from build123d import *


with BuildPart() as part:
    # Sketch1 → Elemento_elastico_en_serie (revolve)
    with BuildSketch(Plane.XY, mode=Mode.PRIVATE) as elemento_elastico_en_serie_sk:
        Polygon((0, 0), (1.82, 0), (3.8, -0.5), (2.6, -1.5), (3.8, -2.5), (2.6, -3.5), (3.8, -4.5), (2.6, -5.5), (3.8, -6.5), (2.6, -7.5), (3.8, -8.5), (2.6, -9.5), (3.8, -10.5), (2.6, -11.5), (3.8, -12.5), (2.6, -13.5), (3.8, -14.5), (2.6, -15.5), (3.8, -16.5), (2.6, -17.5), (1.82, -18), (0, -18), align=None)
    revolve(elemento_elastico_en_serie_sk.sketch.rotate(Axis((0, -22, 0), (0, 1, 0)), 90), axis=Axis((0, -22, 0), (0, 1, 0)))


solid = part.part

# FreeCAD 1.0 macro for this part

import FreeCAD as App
import Part
import Sketcher

V = App.Vector


def add_polygon(sketch, points):
    """Adds a closed chain of lines whose ends are joined by coincident constraints."""
    first, n = sketch.GeometryCount, len(points)
    for a, b in zip(points, points[1:] + points[:1]):
        sketch.addGeometry(Part.LineSegment(App.Vector(*a, 0), App.Vector(*b, 0)), False)
    for i in range(n):
        sketch.addConstraint(Sketcher.Constraint("Coincident", first + i, 2, first + (i + 1) % n, 1))

doc = App.newDocument("Part")
body = doc.addObject("PartDesign::Body", "Body")

# Sketch on XY plane
sketch1 = body.newObject("Sketcher::SketchObject", "Sketch")
sketch1.AttachmentSupport = (doc.getObject("XY_Plane"), [""])
sketch1.MapMode = "FlatFace"
add_polygon(sketch1, [(1.8, 0), (0, 0), (0, -18), (1.8, -18), (2.6, -17.5), (3.8, -16.5), (2.6, -15.5), (3.8, -14.5), (2.6, -13.5), (3.8, -12.5), (2.6, -11.5), (3.8, -10.5), (2.6, -9.5), (3.8, -8.5), (2.6, -7.5), (3.8, -6.5), (2.6, -5.5), (3.8, -4.5), (2.6, -3.5), (3.8, -2.5), (2.6, -1.5), (3.8, -0.5)])  # lines 0-21
sketch1.addConstraint(Sketcher.Constraint("Horizontal", 0))
sketch1.addConstraint(Sketcher.Constraint("Vertical", 1))
sketch1.addConstraint(Sketcher.Constraint("Horizontal", 2))
sketch1.addConstraint(Sketcher.Constraint("Coincident", 0, 2, -1, 1))
sketch1.addConstraint(Sketcher.Constraint("Parallel", 4, 6))
sketch1.addConstraint(Sketcher.Constraint("Parallel", 5, 7))
sketch1.addConstraint(Sketcher.Constraint("Parallel", 6, 8))
sketch1.addConstraint(Sketcher.Constraint("Parallel", 7, 9))
sketch1.addConstraint(Sketcher.Constraint("Parallel", 8, 10))
sketch1.addConstraint(Sketcher.Constraint("Parallel", 9, 11))
sketch1.addConstraint(Sketcher.Constraint("Parallel", 10, 12))
sketch1.addConstraint(Sketcher.Constraint("Parallel", 11, 13))
sketch1.addConstraint(Sketcher.Constraint("Parallel", 12, 14))
sketch1.addConstraint(Sketcher.Constraint("Parallel", 13, 15))
sketch1.addConstraint(Sketcher.Constraint("Parallel", 14, 16))
sketch1.addConstraint(Sketcher.Constraint("Parallel", 15, 17))
sketch1.addConstraint(Sketcher.Constraint("Parallel", 16, 18))
sketch1.addConstraint(Sketcher.Constraint("Parallel", 17, 19))
sketch1.addConstraint(Sketcher.Constraint("Parallel", 18, 20))
sketch1.addConstraint(Sketcher.Constraint("Vertical", 3, 2, 5, 2))
sketch1.addConstraint(Sketcher.Constraint("Vertical", 4, 2, 6, 2))
sketch1.addConstraint(Sketcher.Constraint("Vertical", 5, 2, 7, 2))
sketch1.addConstraint(Sketcher.Constraint("Vertical", 6, 2, 8, 2))
sketch1.addConstraint(Sketcher.Constraint("Vertical", 7, 2, 9, 2))
sketch1.addConstraint(Sketcher.Constraint("Vertical", 8, 2, 10, 2))
sketch1.addConstraint(Sketcher.Constraint("Vertical", 9, 2, 11, 2))
sketch1.addConstraint(Sketcher.Constraint("Vertical", 10, 2, 12, 2))
sketch1.addConstraint(Sketcher.Constraint("Vertical", 11, 2, 13, 2))
sketch1.addConstraint(Sketcher.Constraint("Vertical", 12, 2, 14, 2))
sketch1.addConstraint(Sketcher.Constraint("Vertical", 13, 2, 15, 2))
sketch1.addConstraint(Sketcher.Constraint("Vertical", 14, 2, 16, 2))
sketch1.addConstraint(Sketcher.Constraint("Vertical", 15, 2, 17, 2))
sketch1.addConstraint(Sketcher.Constraint("Vertical", 16, 2, 18, 2))
sketch1.addConstraint(Sketcher.Constraint("Vertical", 17, 2, 19, 2))
sketch1.addConstraint(Sketcher.Constraint("Vertical", 18, 2, 20, 2))
sketch1.addConstraint(Sketcher.Constraint("Vertical", 2, 2, 21, 2))
sketch1.addConstraint(Sketcher.Constraint("Equal", 4, 5))
sketch1.addConstraint(Sketcher.Constraint("DistanceY", 1, 2, 1, 1, 18.0))
sketch1.addConstraint(Sketcher.Constraint("DistanceY", 3, 2, 4, 2, 1.0))
sketch1.addConstraint(Sketcher.Constraint("DistanceX", 0, 2, 0, 1, 1.82))
sketch1.addConstraint(Sketcher.Constraint("DistanceX", -1, 1, 3, 2, 2.6))
sketch1.addConstraint(Sketcher.Constraint("DistanceY", 3, 2, -1, 1, 17.5))
sketch1.addConstraint(Sketcher.Constraint("DistanceX", -1, 1, 4, 2, 3.8))
revolution = body.newObject("PartDesign::Revolution", "Revolution")
revolution.Profile = sketch1
revolution.ReferenceAxis = (sketch1, ["V_Axis"])
revolution.Angle = 360

doc.recompute()
